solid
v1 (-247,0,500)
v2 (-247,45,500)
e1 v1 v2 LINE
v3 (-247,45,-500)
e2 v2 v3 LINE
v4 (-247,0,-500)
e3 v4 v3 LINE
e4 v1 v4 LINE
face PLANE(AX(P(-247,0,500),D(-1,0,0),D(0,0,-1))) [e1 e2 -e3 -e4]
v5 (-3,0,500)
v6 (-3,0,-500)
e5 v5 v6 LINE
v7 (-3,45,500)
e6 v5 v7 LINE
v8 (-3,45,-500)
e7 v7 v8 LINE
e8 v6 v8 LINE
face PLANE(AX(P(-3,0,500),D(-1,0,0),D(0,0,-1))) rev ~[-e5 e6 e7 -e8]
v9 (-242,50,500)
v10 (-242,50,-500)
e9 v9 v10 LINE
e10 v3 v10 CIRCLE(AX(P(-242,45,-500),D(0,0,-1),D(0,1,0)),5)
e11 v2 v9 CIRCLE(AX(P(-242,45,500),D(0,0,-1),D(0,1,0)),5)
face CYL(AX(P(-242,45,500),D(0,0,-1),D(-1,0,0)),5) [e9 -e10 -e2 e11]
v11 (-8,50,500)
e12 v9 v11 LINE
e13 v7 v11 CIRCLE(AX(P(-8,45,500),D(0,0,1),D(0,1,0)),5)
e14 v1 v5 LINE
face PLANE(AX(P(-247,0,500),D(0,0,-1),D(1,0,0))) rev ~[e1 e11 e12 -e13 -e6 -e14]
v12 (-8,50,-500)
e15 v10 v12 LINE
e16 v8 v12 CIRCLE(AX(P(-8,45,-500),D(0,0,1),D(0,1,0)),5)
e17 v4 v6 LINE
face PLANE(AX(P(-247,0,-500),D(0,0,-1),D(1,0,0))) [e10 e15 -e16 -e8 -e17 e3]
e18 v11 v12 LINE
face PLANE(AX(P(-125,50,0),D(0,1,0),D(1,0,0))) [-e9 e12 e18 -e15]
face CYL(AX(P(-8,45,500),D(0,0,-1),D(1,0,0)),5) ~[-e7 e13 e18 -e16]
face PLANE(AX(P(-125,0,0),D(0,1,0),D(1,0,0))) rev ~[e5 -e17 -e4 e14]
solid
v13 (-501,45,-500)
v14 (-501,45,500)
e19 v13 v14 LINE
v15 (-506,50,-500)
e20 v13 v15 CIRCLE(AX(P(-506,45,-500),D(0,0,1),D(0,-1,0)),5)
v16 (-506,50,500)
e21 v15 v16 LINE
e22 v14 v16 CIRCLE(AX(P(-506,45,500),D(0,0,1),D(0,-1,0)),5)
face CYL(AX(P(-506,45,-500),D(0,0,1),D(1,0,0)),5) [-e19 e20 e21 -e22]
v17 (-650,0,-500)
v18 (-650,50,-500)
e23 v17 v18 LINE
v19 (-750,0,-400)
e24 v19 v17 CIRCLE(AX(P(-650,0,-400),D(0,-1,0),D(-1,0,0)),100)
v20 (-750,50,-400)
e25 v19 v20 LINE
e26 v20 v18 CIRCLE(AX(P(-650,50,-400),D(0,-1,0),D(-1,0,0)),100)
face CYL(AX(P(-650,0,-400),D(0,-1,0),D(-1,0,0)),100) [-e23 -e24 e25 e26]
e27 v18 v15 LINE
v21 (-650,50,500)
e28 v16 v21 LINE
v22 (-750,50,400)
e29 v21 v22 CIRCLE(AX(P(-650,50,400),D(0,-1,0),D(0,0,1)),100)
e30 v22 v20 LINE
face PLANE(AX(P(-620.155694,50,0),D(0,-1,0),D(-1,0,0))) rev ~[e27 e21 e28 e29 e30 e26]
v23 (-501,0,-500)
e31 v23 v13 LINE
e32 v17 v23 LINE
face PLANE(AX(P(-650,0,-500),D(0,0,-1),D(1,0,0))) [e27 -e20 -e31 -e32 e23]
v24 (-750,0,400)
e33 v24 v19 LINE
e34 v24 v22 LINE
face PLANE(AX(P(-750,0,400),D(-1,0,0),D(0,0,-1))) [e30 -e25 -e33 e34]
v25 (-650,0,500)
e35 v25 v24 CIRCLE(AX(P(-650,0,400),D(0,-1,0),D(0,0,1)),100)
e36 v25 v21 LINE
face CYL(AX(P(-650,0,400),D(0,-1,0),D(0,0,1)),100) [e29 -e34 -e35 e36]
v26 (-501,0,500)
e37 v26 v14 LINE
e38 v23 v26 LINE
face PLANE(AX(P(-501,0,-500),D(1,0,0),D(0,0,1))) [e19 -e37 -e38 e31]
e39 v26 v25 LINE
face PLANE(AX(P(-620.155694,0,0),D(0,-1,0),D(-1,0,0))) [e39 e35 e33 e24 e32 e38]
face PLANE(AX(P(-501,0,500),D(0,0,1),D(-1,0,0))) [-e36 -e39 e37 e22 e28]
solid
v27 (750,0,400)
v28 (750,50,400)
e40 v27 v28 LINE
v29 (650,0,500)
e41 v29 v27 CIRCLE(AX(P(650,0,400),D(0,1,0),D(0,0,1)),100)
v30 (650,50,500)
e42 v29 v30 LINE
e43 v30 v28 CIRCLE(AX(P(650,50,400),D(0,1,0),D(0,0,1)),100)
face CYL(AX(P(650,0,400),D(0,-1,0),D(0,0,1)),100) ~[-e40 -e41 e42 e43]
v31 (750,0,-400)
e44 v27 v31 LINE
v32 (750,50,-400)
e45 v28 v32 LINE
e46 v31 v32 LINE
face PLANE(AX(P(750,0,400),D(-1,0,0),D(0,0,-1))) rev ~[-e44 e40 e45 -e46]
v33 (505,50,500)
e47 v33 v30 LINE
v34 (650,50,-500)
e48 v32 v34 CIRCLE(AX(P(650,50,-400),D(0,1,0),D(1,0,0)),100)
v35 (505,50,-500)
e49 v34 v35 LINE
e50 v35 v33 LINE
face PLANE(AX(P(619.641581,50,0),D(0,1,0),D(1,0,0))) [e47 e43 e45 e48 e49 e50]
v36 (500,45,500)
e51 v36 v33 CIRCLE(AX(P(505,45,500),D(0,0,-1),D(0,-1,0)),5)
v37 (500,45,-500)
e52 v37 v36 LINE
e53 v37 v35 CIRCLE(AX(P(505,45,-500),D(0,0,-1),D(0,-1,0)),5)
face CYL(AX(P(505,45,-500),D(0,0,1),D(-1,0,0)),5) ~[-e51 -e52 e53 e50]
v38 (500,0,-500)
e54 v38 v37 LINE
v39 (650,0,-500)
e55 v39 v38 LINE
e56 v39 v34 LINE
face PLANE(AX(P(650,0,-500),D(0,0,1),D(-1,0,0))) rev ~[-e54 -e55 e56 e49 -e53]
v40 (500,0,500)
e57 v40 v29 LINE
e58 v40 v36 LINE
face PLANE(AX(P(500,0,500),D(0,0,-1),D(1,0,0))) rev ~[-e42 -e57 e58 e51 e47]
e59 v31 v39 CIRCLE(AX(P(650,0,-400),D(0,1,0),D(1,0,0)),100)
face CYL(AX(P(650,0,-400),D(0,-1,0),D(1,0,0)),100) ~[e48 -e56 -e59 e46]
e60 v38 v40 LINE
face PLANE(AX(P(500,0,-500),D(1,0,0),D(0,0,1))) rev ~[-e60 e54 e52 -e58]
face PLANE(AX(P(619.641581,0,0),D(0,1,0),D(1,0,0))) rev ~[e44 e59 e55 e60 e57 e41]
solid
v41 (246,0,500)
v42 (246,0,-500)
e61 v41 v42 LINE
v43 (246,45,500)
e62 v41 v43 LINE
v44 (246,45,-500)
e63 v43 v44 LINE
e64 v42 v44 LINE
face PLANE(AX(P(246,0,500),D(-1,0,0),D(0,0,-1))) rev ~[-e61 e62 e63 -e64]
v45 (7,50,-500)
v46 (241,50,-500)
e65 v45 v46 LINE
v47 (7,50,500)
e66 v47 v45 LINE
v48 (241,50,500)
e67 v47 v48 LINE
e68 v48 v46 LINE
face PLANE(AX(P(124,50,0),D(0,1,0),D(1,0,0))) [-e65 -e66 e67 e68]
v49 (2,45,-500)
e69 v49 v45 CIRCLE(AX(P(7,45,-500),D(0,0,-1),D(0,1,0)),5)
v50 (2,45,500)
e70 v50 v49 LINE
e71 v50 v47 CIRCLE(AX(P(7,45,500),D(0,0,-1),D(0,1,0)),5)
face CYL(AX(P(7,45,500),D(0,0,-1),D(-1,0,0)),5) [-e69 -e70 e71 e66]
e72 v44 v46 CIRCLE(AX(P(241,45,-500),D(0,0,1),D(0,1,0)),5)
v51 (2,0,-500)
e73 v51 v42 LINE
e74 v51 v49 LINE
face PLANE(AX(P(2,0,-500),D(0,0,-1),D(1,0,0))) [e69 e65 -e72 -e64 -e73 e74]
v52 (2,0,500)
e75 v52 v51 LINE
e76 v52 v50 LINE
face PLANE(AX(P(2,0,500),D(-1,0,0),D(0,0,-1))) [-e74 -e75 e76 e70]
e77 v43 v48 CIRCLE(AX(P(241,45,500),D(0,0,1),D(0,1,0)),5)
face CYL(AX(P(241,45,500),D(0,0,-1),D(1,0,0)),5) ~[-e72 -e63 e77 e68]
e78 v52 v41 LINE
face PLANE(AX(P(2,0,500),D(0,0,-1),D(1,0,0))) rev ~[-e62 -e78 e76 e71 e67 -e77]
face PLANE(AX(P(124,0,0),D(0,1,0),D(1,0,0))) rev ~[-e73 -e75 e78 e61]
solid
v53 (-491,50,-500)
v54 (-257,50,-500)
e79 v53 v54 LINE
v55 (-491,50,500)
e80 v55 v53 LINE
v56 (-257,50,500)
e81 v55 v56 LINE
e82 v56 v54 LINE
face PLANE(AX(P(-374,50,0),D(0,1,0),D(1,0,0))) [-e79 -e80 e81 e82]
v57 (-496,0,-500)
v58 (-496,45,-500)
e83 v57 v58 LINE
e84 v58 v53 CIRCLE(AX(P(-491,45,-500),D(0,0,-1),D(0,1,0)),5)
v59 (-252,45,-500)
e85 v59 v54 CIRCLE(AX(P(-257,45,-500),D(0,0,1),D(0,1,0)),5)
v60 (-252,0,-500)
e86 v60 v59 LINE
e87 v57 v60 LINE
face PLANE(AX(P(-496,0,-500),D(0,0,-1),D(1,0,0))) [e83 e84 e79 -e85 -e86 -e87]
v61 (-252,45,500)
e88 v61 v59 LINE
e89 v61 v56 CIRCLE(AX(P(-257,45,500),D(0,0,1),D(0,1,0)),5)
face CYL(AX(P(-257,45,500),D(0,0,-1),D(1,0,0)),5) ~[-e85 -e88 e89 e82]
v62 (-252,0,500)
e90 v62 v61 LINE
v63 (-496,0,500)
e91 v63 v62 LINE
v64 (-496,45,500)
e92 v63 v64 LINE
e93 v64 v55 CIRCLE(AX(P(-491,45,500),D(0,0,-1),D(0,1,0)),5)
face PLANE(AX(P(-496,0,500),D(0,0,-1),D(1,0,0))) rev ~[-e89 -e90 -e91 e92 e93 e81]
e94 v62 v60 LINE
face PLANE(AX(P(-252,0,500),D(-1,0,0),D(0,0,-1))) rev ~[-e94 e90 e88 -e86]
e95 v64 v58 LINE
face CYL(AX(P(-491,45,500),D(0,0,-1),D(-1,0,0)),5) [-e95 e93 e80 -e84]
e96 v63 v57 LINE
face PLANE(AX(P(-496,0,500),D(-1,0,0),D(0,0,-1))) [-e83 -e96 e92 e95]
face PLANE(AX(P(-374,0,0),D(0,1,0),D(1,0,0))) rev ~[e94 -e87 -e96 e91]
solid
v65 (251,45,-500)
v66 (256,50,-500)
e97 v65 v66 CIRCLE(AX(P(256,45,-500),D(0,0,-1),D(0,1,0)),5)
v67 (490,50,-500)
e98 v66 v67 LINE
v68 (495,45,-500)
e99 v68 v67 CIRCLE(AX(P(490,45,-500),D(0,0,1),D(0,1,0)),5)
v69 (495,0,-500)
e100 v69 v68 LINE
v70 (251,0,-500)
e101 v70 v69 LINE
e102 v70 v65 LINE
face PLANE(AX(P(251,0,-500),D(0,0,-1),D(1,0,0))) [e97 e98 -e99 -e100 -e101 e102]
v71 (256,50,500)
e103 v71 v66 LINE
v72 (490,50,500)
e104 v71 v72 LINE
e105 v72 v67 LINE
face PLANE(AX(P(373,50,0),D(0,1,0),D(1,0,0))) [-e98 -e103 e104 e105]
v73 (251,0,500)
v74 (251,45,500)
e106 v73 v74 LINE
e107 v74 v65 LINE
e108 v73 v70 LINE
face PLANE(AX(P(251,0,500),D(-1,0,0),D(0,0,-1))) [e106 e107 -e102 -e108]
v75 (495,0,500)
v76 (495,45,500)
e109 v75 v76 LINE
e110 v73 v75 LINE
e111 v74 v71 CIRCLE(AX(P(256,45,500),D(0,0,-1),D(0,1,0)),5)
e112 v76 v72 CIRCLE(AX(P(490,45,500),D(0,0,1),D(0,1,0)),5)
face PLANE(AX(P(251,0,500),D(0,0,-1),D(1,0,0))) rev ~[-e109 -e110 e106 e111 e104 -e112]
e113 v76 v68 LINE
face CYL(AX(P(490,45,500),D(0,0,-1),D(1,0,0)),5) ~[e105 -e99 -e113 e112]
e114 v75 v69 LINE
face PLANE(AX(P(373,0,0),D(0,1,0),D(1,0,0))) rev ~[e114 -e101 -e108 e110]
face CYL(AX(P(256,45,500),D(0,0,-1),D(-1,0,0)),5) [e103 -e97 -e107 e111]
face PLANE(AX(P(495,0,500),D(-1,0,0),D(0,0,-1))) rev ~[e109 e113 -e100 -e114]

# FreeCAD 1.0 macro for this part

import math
import FreeCAD as App
import Part
import Sketcher
from FreeCAD import Vector
Q = App.Units.Quantity


def edges_at(feature, points):
    """Names of the edges that pass closest to the given points."""
    edges = feature.Shape.Edges
    near = lambda p: min(range(len(edges)), key=lambda i: edges[i].distToShape(Part.Vertex(*p))[0])
    return sorted({f"Edge{near(p) + 1}" for p in points})

doc = App.newDocument("Part")
params = doc.addObject("Spreadsheet::Sheet", "Params")
for row, (alias, value) in enumerate([
    ("sketch1_radius", "100 mm"),
    ("sketch1_width", "149 mm"),
    ("sketch1_height", "1000 mm"),
    ("pad1_length", "50 mm"),
    ("fillet_radius", "5 mm"),
    ("sketch2_width", "244 mm"),
    ("sketch2_height", "1000 mm"),
    ("pad2_length", "50 mm"),
    ("fillet2_radius", "5 mm"),
    ("sketch3_width", "244 mm"),
    ("sketch3_height", "1000 mm"),
    ("pad3_length", "50 mm"),
    ("fillet3_radius", "5 mm"),
    ("sketch4_width", "244 mm"),
    ("sketch4_height", "1000 mm"),
    ("pad4_length", "50 mm"),
    ("fillet4_radius", "5 mm"),
    ("sketch5_width", "244 mm"),
    ("sketch5_height", "1000 mm"),
    ("pad5_length", "50 mm"),
    ("fillet5_radius", "5 mm"),
    ("sketch6_radius", "100 mm"),
    ("sketch6_width", "150 mm"),
    ("sketch6_height", "800 mm"),
    ("pad6_length", "50 mm"),
    ("fillet6_radius", "5 mm"),
], start=1):
    params.set(f"A{row}", alias)
    params.set(f"B{row}", "=" + value)
    params.setAlias(f"B{row}", alias)

body = doc.addObject("PartDesign::Body", "Body")

# Sketch on XZ plane
sketch1 = body.newObject("Sketcher::SketchObject", "Sketch")
sketch1.AttachmentSupport = (doc.getObject("XZ_Plane"), [""])
sketch1.MapMode = "FlatFace"
sketch1.addGeometry(Part.ArcOfCircle(Part.Circle(Vector(-650, 400, 0), Vector(0, 0, 1), 100), math.radians(90), math.radians(180)), False)
sketch1.addGeometry(Part.LineSegment(Vector(-650, 500, 0), Vector(-501, 500, 0)), False)
sketch1.addGeometry(Part.LineSegment(Vector(-501, 500, 0), Vector(-501, -500, 0)), False)
sketch1.addGeometry(Part.LineSegment(Vector(-501, -500, 0), Vector(-650, -500, 0)), False)
sketch1.addGeometry(Part.ArcOfCircle(Part.Circle(Vector(-650, -400, 0), Vector(0, 0, 1), 100), math.radians(180), math.radians(270)), False)
sketch1.addGeometry(Part.LineSegment(Vector(-750, -400, 0), Vector(-750, 400, 0)), False)
sketch1.addConstraint(Sketcher.Constraint("Tangent", 0, 1, 1, 1))
sketch1.addConstraint(Sketcher.Constraint("Coincident", 1, 2, 2, 1))
sketch1.addConstraint(Sketcher.Constraint("Coincident", 2, 2, 3, 1))
sketch1.addConstraint(Sketcher.Constraint("Tangent", 3, 2, 4, 2))
sketch1.addConstraint(Sketcher.Constraint("Tangent", 4, 1, 5, 1))
sketch1.addConstraint(Sketcher.Constraint("Tangent", 5, 2, 0, 2))
sketch1.addConstraint(Sketcher.Constraint("Horizontal", 1))
sketch1.addConstraint(Sketcher.Constraint("Vertical", 2))
sketch1.addConstraint(Sketcher.Constraint("Horizontal", 3))
sketch1.addConstraint(Sketcher.Constraint("Vertical", 5))
sketch1.addConstraint(Sketcher.Constraint("Equal", 0, 4))
sketch1.addConstraint(Sketcher.Constraint("Radius", 0, Q("100 mm")))
sketch1.addConstraint(Sketcher.Constraint("DistanceX", 1, 1, 1, 2, Q("149 mm")))
sketch1.addConstraint(Sketcher.Constraint("DistanceY", 2, 2, 2, 1, Q("1000 mm")))
sketch1.addConstraint(Sketcher.Constraint("DistanceX", 0, 3, -1, 1, Q("650 mm")))
sketch1.addConstraint(Sketcher.Constraint("DistanceY", -1, 1, 0, 3, Q("400 mm")))
sketch1.setExpression("Constraints[11]", "Params.sketch1_radius")
sketch1.setExpression("Constraints[12]", "Params.sketch1_width")
sketch1.setExpression("Constraints[13]", "Params.sketch1_height")
pad1 = body.newObject("PartDesign::Pad", "Pad")
pad1.Profile = sketch1
pad1.setExpression("Length", "Params.pad1_length")
pad1.Reversed = True
doc.recompute()

fillet = body.newObject("PartDesign::Fillet", "Fillet")
fillet.Base = (pad1, edges_at(pad1, [(-501, 50, 0)]))
fillet.setExpression("Radius", "Params.fillet_radius")
body2 = doc.addObject("PartDesign::Body", "Body001")

# Sketch on XZ plane
sketch2 = body2.newObject("Sketcher::SketchObject", "Sketch001")
sketch2.AttachmentSupport = (doc.getObject("XZ_Plane001"), [""])
sketch2.MapMode = "FlatFace"
sketch2.addGeometry(Part.LineSegment(Vector(-496, -500, 0), Vector(-496, 500, 0)), False)
sketch2.addGeometry(Part.LineSegment(Vector(-496, 500, 0), Vector(-252, 500, 0)), False)
sketch2.addGeometry(Part.LineSegment(Vector(-252, 500, 0), Vector(-252, -500, 0)), False)
sketch2.addGeometry(Part.LineSegment(Vector(-252, -500, 0), Vector(-496, -500, 0)), False)
sketch2.addConstraint(Sketcher.Constraint("Coincident", 0, 2, 1, 1))
sketch2.addConstraint(Sketcher.Constraint("Coincident", 1, 2, 2, 1))
sketch2.addConstraint(Sketcher.Constraint("Coincident", 2, 2, 3, 1))
sketch2.addConstraint(Sketcher.Constraint("Coincident", 3, 2, 0, 1))
sketch2.addConstraint(Sketcher.Constraint("Vertical", 0))
sketch2.addConstraint(Sketcher.Constraint("Horizontal", 1))
sketch2.addConstraint(Sketcher.Constraint("Vertical", 2))
sketch2.addConstraint(Sketcher.Constraint("Horizontal", 3))
sketch2.addConstraint(Sketcher.Constraint("DistanceX", 1, 1, 1, 2, Q("244 mm")))
sketch2.addConstraint(Sketcher.Constraint("DistanceY", 0, 1, 0, 2, Q("1000 mm")))
sketch2.addConstraint(Sketcher.Constraint("DistanceX", 0, 2, -1, 1, Q("496 mm")))
sketch2.addConstraint(Sketcher.Constraint("DistanceY", -1, 1, 0, 2, Q("500 mm")))
sketch2.setExpression("Constraints[8]", "Params.sketch2_width")
sketch2.setExpression("Constraints[9]", "Params.sketch2_height")
pad2 = body2.newObject("PartDesign::Pad", "Pad001")
pad2.Profile = sketch2
pad2.setExpression("Length", "Params.pad2_length")
pad2.Reversed = True
doc.recompute()

fillet2 = body2.newObject("PartDesign::Fillet", "Fillet001")
fillet2.Base = (pad2, edges_at(pad2, [(-496, 50, 0), (-252, 50, 0)]))
fillet2.setExpression("Radius", "Params.fillet2_radius")
body3 = doc.addObject("PartDesign::Body", "Body002")

# Sketch on XZ plane
sketch3 = body3.newObject("Sketcher::SketchObject", "Sketch002")
sketch3.AttachmentSupport = (doc.getObject("XZ_Plane002"), [""])
sketch3.MapMode = "FlatFace"
sketch3.addGeometry(Part.LineSegment(Vector(-247, -500, 0), Vector(-247, 500, 0)), False)
sketch3.addGeometry(Part.LineSegment(Vector(-247, 500, 0), Vector(-3, 500, 0)), False)
sketch3.addGeometry(Part.LineSegment(Vector(-3, 500, 0), Vector(-3, -500, 0)), False)
sketch3.addGeometry(Part.LineSegment(Vector(-3, -500, 0), Vector(-247, -500, 0)), False)
sketch3.addConstraint(Sketcher.Constraint("Coincident", 0, 2, 1, 1))
sketch3.addConstraint(Sketcher.Constraint("Coincident", 1, 2, 2, 1))
sketch3.addConstraint(Sketcher.Constraint("Coincident", 2, 2, 3, 1))
sketch3.addConstraint(Sketcher.Constraint("Coincident", 3, 2, 0, 1))
sketch3.addConstraint(Sketcher.Constraint("Vertical", 0))
sketch3.addConstraint(Sketcher.Constraint("Horizontal", 1))
sketch3.addConstraint(Sketcher.Constraint("Vertical", 2))
sketch3.addConstraint(Sketcher.Constraint("Horizontal", 3))
sketch3.addConstraint(Sketcher.Constraint("DistanceX", 1, 1, 1, 2, Q("244 mm")))
sketch3.addConstraint(Sketcher.Constraint("DistanceY", 0, 1, 0, 2, Q("1000 mm")))
sketch3.addConstraint(Sketcher.Constraint("DistanceX", 0, 2, -1, 1, Q("247 mm")))
sketch3.addConstraint(Sketcher.Constraint("DistanceY", -1, 1, 0, 2, Q("500 mm")))
sketch3.setExpression("Constraints[8]", "Params.sketch3_width")
sketch3.setExpression("Constraints[9]", "Params.sketch3_height")
pad3 = body3.newObject("PartDesign::Pad", "Pad002")
pad3.Profile = sketch3
pad3.setExpression("Length", "Params.pad3_length")
pad3.Reversed = True
doc.recompute()

fillet3 = body3.newObject("PartDesign::Fillet", "Fillet002")
fillet3.Base = (pad3, edges_at(pad3, [(-247, 50, 0), (-3, 50, 0)]))
fillet3.setExpression("Radius", "Params.fillet3_radius")
body4 = doc.addObject("PartDesign::Body", "Body003")

# Sketch on XZ plane
sketch4 = body4.newObject("Sketcher::SketchObject", "Sketch003")
sketch4.AttachmentSupport = (doc.getObject("XZ_Plane003"), [""])
sketch4.MapMode = "FlatFace"
sketch4.addGeometry(Part.LineSegment(Vector(2, -500, 0), Vector(2, 500, 0)), False)
sketch4.addGeometry(Part.LineSegment(Vector(2, 500, 0), Vector(246, 500, 0)), False)
sketch4.addGeometry(Part.LineSegment(Vector(246, 500, 0), Vector(246, -500, 0)), False)
sketch4.addGeometry(Part.LineSegment(Vector(246, -500, 0), Vector(2, -500, 0)), False)
sketch4.addConstraint(Sketcher.Constraint("Coincident", 0, 2, 1, 1))
sketch4.addConstraint(Sketcher.Constraint("Coincident", 1, 2, 2, 1))
sketch4.addConstraint(Sketcher.Constraint("Coincident", 2, 2, 3, 1))
sketch4.addConstraint(Sketcher.Constraint("Coincident", 3, 2, 0, 1))
sketch4.addConstraint(Sketcher.Constraint("Vertical", 0))
sketch4.addConstraint(Sketcher.Constraint("Horizontal", 1))
sketch4.addConstraint(Sketcher.Constraint("Vertical", 2))
sketch4.addConstraint(Sketcher.Constraint("Horizontal", 3))
sketch4.addConstraint(Sketcher.Constraint("DistanceX", 1, 1, 1, 2, Q("244 mm")))
sketch4.addConstraint(Sketcher.Constraint("DistanceY", 0, 1, 0, 2, Q("1000 mm")))
sketch4.addConstraint(Sketcher.Constraint("DistanceX", -1, 1, 0, 2, Q("2 mm")))
sketch4.addConstraint(Sketcher.Constraint("DistanceY", -1, 1, 0, 2, Q("500 mm")))
sketch4.setExpression("Constraints[8]", "Params.sketch4_width")
sketch4.setExpression("Constraints[9]", "Params.sketch4_height")
pad4 = body4.newObject("PartDesign::Pad", "Pad003")
pad4.Profile = sketch4
pad4.setExpression("Length", "Params.pad4_length")
pad4.Reversed = True
doc.recompute()

fillet4 = body4.newObject("PartDesign::Fillet", "Fillet003")
fillet4.Base = (pad4, edges_at(pad4, [(2, 50, 0), (246, 50, 0)]))
fillet4.setExpression("Radius", "Params.fillet4_radius")
body5 = doc.addObject("PartDesign::Body", "Body004")

# Sketch on XZ plane
sketch5 = body5.newObject("Sketcher::SketchObject", "Sketch004")
sketch5.AttachmentSupport = (doc.getObject("XZ_Plane004"), [""])
sketch5.MapMode = "FlatFace"
sketch5.addGeometry(Part.LineSegment(Vector(251, -500, 0), Vector(251, 500, 0)), False)
sketch5.addGeometry(Part.LineSegment(Vector(251, 500, 0), Vector(495, 500, 0)), False)
sketch5.addGeometry(Part.LineSegment(Vector(495, 500, 0), Vector(495, -500, 0)), False)
sketch5.addGeometry(Part.LineSegment(Vector(495, -500, 0), Vector(251, -500, 0)), False)
sketch5.addConstraint(Sketcher.Constraint("Coincident", 0, 2, 1, 1))
sketch5.addConstraint(Sketcher.Constraint("Coincident", 1, 2, 2, 1))
sketch5.addConstraint(Sketcher.Constraint("Coincident", 2, 2, 3, 1))
sketch5.addConstraint(Sketcher.Constraint("Coincident", 3, 2, 0, 1))
sketch5.addConstraint(Sketcher.Constraint("Vertical", 0))
sketch5.addConstraint(Sketcher.Constraint("Horizontal", 1))
sketch5.addConstraint(Sketcher.Constraint("Vertical", 2))
sketch5.addConstraint(Sketcher.Constraint("Horizontal", 3))
sketch5.addConstraint(Sketcher.Constraint("DistanceX", 1, 1, 1, 2, Q("244 mm")))
sketch5.addConstraint(Sketcher.Constraint("DistanceY", 0, 1, 0, 2, Q("1000 mm")))
sketch5.addConstraint(Sketcher.Constraint("DistanceX", -1, 1, 0, 2, Q("251 mm")))
sketch5.addConstraint(Sketcher.Constraint("DistanceY", -1, 1, 0, 2, Q("500 mm")))
sketch5.setExpression("Constraints[8]", "Params.sketch5_width")
sketch5.setExpression("Constraints[9]", "Params.sketch5_height")
pad5 = body5.newObject("PartDesign::Pad", "Pad004")
pad5.Profile = sketch5
pad5.setExpression("Length", "Params.pad5_length")
pad5.Reversed = True
doc.recompute()

fillet5 = body5.newObject("PartDesign::Fillet", "Fillet004")
fillet5.Base = (pad5, edges_at(pad5, [(251, 50, 0), (495, 50, 0)]))
fillet5.setExpression("Radius", "Params.fillet5_radius")
body6 = doc.addObject("PartDesign::Body", "Body005")

# Sketch on XZ plane
sketch6 = body6.newObject("Sketcher::SketchObject", "Sketch005")
sketch6.AttachmentSupport = (doc.getObject("XZ_Plane005"), [""])
sketch6.MapMode = "FlatFace"
sketch6.addGeometry(Part.LineSegment(Vector(500, 500, 0), Vector(650, 500, 0)), False)
sketch6.addGeometry(Part.ArcOfCircle(Part.Circle(Vector(650, 400, 0), Vector(0, 0, 1), 100), math.radians(0), math.radians(90)), False)
sketch6.addGeometry(Part.LineSegment(Vector(750, 400, 0), Vector(750, -400, 0)), False)
sketch6.addGeometry(Part.ArcOfCircle(Part.Circle(Vector(650, -400, 0), Vector(0, 0, 1), 100), math.radians(-90), math.radians(0)), False)
sketch6.addGeometry(Part.LineSegment(Vector(650, -500, 0), Vector(500, -500, 0)), False)
sketch6.addGeometry(Part.LineSegment(Vector(500, -500, 0), Vector(500, 500, 0)), False)
sketch6.addConstraint(Sketcher.Constraint("Tangent", 0, 2, 1, 2))
sketch6.addConstraint(Sketcher.Constraint("Tangent", 1, 1, 2, 1))
sketch6.addConstraint(Sketcher.Constraint("Tangent", 2, 2, 3, 2))
sketch6.addConstraint(Sketcher.Constraint("Tangent", 3, 1, 4, 1))
sketch6.addConstraint(Sketcher.Constraint("Coincident", 4, 2, 5, 1))
sketch6.addConstraint(Sketcher.Constraint("Coincident", 5, 2, 0, 1))
sketch6.addConstraint(Sketcher.Constraint("Horizontal", 0))
sketch6.addConstraint(Sketcher.Constraint("Vertical", 2))
sketch6.addConstraint(Sketcher.Constraint("Horizontal", 4))
sketch6.addConstraint(Sketcher.Constraint("Vertical", 5))
sketch6.addConstraint(Sketcher.Constraint("Equal", 1, 3))
sketch6.addConstraint(Sketcher.Constraint("Radius", 1, Q("100 mm")))
sketch6.addConstraint(Sketcher.Constraint("DistanceX", 0, 1, 0, 2, Q("150 mm")))
sketch6.addConstraint(Sketcher.Constraint("DistanceY", 2, 2, 2, 1, Q("800 mm")))
sketch6.addConstraint(Sketcher.Constraint("DistanceX", -1, 1, 1, 3, Q("650 mm")))
sketch6.addConstraint(Sketcher.Constraint("DistanceY", -1, 1, 1, 3, Q("400 mm")))
sketch6.setExpression("Constraints[11]", "Params.sketch6_radius")
sketch6.setExpression("Constraints[12]", "Params.sketch6_width")
sketch6.setExpression("Constraints[13]", "Params.sketch6_height")
pad6 = body6.newObject("PartDesign::Pad", "Pad005")
pad6.Profile = sketch6
pad6.setExpression("Length", "Params.pad6_length")
pad6.Reversed = True
doc.recompute()

fillet6 = body6.newObject("PartDesign::Fillet", "Fillet005")
fillet6.Base = (pad6, edges_at(pad6, [(500, 50, 0)]))
fillet6.setExpression("Radius", "Params.fillet6_radius")

doc.recompute()
